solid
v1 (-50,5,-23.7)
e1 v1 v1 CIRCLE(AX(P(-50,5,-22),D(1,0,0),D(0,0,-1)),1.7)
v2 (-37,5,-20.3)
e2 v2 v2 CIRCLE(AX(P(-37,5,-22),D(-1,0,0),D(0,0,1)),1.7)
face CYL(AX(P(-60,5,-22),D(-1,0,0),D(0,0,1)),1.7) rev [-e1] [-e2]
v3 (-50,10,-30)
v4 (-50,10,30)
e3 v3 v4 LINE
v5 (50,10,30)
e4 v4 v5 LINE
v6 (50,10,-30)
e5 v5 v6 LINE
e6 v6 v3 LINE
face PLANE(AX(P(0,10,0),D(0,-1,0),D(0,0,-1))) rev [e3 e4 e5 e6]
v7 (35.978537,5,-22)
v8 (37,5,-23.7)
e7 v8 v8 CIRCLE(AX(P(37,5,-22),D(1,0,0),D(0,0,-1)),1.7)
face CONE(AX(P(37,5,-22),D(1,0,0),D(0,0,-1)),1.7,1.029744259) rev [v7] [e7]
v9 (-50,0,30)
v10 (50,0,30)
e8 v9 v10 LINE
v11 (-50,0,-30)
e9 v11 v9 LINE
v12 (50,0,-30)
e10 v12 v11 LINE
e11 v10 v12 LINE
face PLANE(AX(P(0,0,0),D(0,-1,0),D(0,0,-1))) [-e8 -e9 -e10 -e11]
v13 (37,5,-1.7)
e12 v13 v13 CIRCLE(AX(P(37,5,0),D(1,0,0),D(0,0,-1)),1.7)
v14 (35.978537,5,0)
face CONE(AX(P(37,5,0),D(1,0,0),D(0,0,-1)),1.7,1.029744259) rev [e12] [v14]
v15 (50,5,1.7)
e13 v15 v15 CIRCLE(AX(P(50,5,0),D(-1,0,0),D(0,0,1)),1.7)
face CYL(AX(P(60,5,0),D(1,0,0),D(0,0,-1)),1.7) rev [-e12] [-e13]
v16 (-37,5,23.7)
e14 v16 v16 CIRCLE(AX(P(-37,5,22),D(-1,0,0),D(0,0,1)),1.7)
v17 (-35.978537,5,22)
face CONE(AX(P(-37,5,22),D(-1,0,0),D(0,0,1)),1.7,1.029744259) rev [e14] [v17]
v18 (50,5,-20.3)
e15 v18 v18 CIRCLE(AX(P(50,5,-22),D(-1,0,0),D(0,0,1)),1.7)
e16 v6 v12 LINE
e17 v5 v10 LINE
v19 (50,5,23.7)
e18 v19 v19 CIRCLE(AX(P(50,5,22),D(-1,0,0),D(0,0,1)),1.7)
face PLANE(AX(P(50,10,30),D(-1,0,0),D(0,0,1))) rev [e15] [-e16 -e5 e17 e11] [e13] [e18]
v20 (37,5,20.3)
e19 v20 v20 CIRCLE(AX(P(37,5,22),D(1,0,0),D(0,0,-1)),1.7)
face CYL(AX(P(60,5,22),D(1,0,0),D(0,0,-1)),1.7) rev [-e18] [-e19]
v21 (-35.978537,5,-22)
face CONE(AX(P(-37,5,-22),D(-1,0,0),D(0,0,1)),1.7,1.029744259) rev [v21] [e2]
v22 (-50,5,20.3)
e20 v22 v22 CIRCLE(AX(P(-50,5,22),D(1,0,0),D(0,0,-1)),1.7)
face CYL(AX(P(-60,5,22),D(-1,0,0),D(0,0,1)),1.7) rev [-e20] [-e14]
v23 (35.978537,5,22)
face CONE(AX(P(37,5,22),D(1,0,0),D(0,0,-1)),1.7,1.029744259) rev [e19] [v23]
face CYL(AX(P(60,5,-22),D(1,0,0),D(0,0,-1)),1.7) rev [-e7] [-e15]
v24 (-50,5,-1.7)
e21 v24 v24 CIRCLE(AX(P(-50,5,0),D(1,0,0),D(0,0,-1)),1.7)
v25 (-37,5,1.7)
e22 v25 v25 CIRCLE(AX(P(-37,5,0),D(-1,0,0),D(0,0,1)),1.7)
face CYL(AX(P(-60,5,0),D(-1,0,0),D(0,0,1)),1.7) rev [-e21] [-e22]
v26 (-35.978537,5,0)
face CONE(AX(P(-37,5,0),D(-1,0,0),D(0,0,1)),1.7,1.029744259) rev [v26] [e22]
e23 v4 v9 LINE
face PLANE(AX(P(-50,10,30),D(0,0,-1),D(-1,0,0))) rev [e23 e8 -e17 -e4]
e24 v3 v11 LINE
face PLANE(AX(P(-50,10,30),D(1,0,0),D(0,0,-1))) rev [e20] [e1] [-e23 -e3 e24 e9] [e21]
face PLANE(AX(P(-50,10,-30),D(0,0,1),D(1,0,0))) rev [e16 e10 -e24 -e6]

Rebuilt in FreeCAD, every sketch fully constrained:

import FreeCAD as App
import Part
import Sketcher


def add_polygon(sketch, points):
    """Adds a closed chain of lines whose ends are joined by coincident constraints."""
    first, n = sketch.GeometryCount, len(points)
    for a, b in zip(points, points[1:] + points[:1]):
        sketch.addGeometry(Part.LineSegment(App.Vector(*a, 0), App.Vector(*b, 0)), False)
    for i in range(n):
        sketch.addConstraint(Sketcher.Constraint("Coincident", first + i, 2, first + (i + 1) % n, 1))

doc = App.newDocument("Part")
body = doc.addObject("PartDesign::Body", "Body")

# Sketch on XZ plane
sketch1 = body.newObject("Sketcher::SketchObject", "Sketch")
sketch1.AttachmentSupport = (doc.getObject("XZ_Plane"), [""])
sketch1.MapMode = "FlatFace"
add_polygon(sketch1, [(-50, -30), (-50, 30), (50, 30), (50, -30)])  # lines 0-3
sketch1.addConstraint([
    Sketcher.Constraint("Vertical", 0),
    Sketcher.Constraint("Horizontal", 1),
    Sketcher.Constraint("Vertical", 2),
    Sketcher.Constraint("Horizontal", 3),
    Sketcher.Constraint("Symmetric", 0, 2, 2, 2, -1, 1),
    Sketcher.Constraint("DistanceX", 1, 1, 1, 2, 100.0),
    Sketcher.Constraint("DistanceY", 0, 1, 0, 2, 60.0),
])
pad1 = body.newObject("PartDesign::Pad", "Pad")
pad1.Profile = sketch1
pad1.Length = 10
pad1.Reversed = True

# Sketch on YZ plane
sketch2 = body.newObject("Sketcher::SketchObject", "Sketch001")
sketch2.AttachmentSupport = (doc.getObject("YZ_Plane"), [""])
sketch2.MapMode = "FlatFace"
sketch2.AttachmentOffset = App.Placement(App.Vector(0, 0, 60), App.Rotation())
sketch2.addGeometry([
    Part.Circle(App.Vector(5, -22, 0), App.Vector(0, 0, 1), 1.7),
    Part.Circle(App.Vector(5, 22, 0), App.Vector(0, 0, 1), 1.7),
    Part.Circle(App.Vector(5, 0, 0), App.Vector(0, 0, 1), 1.7),
], False)
sketch2.addConstraint([
    Sketcher.Constraint("Equal", 0, 1),
    Sketcher.Constraint("Equal", 1, 2),
    Sketcher.Constraint("Symmetric", 0, 3, 1, 3, -1),
    Sketcher.Constraint("PointOnObject", 2, 3, -1),
    Sketcher.Constraint("Vertical", 1, 3, 2, 3),
    Sketcher.Constraint("Diameter", 0, 3.4),
    Sketcher.Constraint("DistanceX", -1, 1, 0, 3, 5.0),
    Sketcher.Constraint("DistanceY", 0, 3, -1, 1, 22.0),
])
doc.recompute()
hole = body.newObject("PartDesign::Hole", "Hole")
hole.Profile = sketch2
hole.ThreadType = "None"
hole.Diameter = 3.4
hole.DepthType = "Dimension"
hole.Depth = 23
hole.DrillPoint = "Angled"
hole.DrillPointAngle = 118
hole.HoleCutType = "Counterbore"
hole.HoleCutDiameter = 6.5
hole.HoleCutDepth = 3

# Sketch on YZ plane
sketch3 = body.newObject("Sketcher::SketchObject", "Sketch002")
sketch3.AttachmentSupport = (doc.getObject("YZ_Plane"), [""])
sketch3.MapMode = "FlatFace"
sketch3.AttachmentOffset = App.Placement(App.Vector(0, 0, -60), App.Rotation())
sketch3.addGeometry([
    Part.Circle(App.Vector(5, -22, 0), App.Vector(0, 0, 1), 1.7),
    Part.Circle(App.Vector(5, 22, 0), App.Vector(0, 0, 1), 1.7),
    Part.Circle(App.Vector(5, 0, 0), App.Vector(0, 0, 1), 1.7),
], False)
sketch3.addConstraint([
    Sketcher.Constraint("Equal", 0, 1),
    Sketcher.Constraint("Equal", 1, 2),
    Sketcher.Constraint("Symmetric", 0, 3, 1, 3, -1),
    Sketcher.Constraint("PointOnObject", 2, 3, -1),
    Sketcher.Constraint("Vertical", 1, 3, 2, 3),
    Sketcher.Constraint("Diameter", 0, 3.4),
    Sketcher.Constraint("DistanceX", -1, 1, 0, 3, 5.0),
    Sketcher.Constraint("DistanceY", 0, 3, -1, 1, 22.0),
])
doc.recompute()
hole2 = body.newObject("PartDesign::Hole", "Hole001")
hole2.Profile = sketch3
hole2.ThreadType = "None"
hole2.Diameter = 3.4
hole2.DepthType = "Dimension"
hole2.Depth = 23
hole2.DrillPoint = "Angled"
hole2.DrillPointAngle = 118
hole2.HoleCutType = "Counterbore"
hole2.HoleCutDiameter = 6.5
hole2.HoleCutDepth = 3
hole2.Reversed = True

doc.recompute()
